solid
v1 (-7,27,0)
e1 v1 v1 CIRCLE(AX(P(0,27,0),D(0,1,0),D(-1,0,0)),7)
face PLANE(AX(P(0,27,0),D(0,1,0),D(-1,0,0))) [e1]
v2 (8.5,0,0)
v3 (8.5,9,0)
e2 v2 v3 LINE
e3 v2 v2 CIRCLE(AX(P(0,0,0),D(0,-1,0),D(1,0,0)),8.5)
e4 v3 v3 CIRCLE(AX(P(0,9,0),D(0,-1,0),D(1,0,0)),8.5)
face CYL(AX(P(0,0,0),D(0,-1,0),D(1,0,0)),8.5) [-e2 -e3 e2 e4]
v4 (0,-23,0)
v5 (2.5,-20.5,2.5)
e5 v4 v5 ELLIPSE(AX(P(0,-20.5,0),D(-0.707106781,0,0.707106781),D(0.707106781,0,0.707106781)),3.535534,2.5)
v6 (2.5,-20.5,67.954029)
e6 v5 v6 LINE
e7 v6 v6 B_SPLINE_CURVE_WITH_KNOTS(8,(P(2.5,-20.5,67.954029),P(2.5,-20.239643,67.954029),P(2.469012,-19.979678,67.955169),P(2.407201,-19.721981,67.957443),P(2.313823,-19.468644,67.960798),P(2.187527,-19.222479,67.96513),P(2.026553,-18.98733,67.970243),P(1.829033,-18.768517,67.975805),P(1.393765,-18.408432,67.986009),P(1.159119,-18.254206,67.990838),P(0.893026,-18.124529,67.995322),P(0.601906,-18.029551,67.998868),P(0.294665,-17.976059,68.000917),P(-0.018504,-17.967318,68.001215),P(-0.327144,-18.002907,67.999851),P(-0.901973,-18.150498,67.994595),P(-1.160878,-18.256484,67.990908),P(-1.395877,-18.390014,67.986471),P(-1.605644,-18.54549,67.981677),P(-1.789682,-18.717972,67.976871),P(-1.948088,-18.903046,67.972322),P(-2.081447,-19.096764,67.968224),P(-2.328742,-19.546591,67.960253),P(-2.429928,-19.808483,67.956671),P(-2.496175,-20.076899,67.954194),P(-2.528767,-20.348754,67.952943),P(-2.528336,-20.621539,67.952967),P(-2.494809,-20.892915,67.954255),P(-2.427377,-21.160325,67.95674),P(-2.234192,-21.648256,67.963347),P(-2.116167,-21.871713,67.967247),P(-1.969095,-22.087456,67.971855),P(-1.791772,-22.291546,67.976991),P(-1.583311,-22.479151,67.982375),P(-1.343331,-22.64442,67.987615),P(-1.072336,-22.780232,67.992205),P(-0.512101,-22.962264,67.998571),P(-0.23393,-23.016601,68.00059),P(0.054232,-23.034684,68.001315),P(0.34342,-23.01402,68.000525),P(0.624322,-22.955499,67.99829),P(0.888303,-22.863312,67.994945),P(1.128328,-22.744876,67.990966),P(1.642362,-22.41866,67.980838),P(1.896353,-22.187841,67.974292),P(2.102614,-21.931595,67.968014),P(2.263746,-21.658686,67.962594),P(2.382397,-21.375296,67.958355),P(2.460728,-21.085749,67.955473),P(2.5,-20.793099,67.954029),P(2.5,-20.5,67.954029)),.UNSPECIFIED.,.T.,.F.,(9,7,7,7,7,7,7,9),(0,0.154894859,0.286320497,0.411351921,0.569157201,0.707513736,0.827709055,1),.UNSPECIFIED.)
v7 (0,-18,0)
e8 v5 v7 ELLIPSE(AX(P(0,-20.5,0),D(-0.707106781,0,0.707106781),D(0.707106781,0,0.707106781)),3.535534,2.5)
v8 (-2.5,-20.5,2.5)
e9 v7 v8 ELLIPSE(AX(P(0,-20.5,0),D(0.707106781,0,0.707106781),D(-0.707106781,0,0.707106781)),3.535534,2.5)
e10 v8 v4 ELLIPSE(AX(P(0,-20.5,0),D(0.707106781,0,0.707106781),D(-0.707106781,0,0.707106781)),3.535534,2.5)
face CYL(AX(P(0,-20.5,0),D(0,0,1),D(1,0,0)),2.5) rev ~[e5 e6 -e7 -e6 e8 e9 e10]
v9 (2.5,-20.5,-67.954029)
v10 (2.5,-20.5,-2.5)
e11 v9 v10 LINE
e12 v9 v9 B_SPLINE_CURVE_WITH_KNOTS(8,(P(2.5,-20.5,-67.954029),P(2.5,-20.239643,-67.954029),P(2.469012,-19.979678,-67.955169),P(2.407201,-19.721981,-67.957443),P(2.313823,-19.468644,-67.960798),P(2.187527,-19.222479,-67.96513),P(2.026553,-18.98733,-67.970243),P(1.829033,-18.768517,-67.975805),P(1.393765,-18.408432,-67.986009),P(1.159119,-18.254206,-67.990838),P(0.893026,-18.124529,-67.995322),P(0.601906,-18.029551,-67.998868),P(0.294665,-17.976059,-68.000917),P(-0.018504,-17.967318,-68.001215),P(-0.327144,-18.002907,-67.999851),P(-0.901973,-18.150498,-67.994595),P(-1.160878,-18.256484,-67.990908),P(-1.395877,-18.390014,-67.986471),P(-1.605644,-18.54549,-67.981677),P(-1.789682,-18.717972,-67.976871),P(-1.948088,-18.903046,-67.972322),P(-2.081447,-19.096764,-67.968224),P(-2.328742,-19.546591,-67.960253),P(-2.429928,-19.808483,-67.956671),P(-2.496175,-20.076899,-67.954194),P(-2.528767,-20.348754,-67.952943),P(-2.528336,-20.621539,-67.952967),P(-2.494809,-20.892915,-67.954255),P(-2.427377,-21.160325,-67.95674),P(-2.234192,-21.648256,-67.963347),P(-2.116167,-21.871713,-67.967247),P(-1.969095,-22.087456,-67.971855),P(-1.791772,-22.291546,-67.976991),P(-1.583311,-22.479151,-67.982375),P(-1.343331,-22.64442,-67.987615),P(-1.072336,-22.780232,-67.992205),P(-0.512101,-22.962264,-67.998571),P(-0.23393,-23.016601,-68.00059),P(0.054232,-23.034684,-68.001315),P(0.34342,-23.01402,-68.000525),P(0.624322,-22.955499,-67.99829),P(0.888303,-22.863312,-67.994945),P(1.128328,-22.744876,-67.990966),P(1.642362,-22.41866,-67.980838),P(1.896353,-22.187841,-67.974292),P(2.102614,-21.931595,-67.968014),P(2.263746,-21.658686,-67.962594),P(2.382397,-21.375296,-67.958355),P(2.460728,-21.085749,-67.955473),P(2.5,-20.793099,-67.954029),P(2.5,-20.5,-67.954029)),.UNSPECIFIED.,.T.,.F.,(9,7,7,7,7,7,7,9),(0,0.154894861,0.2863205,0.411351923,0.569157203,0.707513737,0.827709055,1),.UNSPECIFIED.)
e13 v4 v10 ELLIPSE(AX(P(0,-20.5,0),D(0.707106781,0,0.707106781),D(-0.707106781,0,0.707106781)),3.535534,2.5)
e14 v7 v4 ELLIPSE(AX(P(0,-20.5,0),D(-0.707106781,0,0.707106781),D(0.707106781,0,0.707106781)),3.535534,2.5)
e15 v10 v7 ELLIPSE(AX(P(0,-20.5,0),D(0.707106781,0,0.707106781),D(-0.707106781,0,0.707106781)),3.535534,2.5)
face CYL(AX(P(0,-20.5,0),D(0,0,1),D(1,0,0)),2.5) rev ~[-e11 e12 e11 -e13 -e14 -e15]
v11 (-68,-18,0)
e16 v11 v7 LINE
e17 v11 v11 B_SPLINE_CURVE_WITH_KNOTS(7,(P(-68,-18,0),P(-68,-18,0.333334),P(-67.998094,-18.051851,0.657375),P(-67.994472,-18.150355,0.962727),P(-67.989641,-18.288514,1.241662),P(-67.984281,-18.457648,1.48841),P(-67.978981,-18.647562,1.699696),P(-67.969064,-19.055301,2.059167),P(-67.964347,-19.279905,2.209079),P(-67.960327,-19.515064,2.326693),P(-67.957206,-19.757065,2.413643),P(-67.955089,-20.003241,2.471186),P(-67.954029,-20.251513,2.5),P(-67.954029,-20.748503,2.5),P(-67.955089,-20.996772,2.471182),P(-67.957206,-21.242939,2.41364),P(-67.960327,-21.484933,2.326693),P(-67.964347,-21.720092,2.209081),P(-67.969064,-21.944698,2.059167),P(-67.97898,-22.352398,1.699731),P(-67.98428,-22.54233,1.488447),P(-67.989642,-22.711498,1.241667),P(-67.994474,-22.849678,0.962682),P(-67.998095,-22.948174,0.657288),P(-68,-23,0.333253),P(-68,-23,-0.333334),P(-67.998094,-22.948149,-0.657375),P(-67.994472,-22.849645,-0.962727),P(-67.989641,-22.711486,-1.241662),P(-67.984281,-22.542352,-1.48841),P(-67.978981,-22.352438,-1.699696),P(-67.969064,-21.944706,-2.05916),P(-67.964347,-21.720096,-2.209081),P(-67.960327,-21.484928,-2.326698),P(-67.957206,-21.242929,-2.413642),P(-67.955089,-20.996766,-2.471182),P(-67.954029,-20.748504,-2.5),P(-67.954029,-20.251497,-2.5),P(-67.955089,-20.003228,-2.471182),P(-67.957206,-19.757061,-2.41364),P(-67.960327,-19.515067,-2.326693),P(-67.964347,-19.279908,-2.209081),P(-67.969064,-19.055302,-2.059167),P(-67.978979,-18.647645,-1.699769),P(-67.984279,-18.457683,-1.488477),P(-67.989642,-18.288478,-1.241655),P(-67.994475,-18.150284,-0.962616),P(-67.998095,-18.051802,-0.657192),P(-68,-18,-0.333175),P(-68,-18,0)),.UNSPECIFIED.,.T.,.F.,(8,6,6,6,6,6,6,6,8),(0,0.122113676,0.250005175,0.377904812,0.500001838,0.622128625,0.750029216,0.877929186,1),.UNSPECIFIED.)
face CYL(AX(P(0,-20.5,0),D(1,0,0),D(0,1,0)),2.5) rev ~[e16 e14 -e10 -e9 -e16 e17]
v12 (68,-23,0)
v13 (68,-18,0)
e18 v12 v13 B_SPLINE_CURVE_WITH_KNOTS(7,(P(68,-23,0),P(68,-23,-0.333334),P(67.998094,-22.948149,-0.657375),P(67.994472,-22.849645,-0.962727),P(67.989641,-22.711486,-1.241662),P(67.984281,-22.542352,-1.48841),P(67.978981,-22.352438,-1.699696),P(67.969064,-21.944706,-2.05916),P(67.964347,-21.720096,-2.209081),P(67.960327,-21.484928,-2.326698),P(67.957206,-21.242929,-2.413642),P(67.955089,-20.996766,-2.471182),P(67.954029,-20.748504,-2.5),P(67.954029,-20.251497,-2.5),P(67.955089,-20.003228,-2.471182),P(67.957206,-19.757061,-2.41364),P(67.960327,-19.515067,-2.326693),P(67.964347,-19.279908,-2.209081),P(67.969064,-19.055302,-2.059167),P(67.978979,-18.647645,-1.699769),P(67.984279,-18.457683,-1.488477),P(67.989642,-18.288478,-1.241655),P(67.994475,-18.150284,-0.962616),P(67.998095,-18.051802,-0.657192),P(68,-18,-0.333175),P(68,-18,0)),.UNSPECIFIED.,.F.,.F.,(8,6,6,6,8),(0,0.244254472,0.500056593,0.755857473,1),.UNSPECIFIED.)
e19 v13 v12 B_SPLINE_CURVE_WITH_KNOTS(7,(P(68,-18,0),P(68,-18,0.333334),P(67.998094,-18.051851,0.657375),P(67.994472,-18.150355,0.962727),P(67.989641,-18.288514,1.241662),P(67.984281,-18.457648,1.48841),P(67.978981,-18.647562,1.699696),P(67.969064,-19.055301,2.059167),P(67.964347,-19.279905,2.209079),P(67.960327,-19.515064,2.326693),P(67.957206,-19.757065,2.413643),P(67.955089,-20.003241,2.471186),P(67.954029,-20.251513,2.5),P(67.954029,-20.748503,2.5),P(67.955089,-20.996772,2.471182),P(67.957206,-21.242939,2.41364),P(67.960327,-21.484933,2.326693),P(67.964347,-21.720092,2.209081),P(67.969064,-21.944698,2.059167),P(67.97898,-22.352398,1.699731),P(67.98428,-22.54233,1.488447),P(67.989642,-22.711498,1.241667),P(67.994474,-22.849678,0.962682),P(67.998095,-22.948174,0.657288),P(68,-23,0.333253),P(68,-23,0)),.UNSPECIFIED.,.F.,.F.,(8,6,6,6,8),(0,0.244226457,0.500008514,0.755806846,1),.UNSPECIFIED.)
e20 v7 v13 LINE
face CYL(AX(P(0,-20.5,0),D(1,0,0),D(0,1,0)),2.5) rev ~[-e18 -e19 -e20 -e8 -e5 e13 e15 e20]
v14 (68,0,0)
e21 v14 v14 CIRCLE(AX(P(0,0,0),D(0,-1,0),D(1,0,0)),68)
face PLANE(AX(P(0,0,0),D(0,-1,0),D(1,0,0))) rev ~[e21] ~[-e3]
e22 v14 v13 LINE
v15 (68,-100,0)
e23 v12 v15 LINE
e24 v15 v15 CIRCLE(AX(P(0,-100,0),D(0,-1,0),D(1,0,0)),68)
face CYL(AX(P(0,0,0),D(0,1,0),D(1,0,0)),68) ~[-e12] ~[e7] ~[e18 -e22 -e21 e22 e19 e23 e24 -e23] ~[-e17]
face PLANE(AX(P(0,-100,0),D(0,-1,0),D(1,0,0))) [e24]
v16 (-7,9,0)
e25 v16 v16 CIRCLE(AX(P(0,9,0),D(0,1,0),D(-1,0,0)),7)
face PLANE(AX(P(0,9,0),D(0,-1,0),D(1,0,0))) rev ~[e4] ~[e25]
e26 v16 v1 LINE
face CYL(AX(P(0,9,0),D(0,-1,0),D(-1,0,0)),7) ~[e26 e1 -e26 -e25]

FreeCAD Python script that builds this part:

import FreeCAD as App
import Part
import Sketcher
Q = App.Units.Quantity

doc = App.newDocument("Part")
params = doc.addObject("Spreadsheet::Sheet", "Params")
for row, (alias, value) in enumerate([
    ("sketch1_diameter", "136 mm"),
    ("pad1_length", "100 mm"),
    ("sketch2_diameter", "17 mm"),
    ("pad2_length", "9 mm"),
    ("sketch3_diameter", "5 mm"),
    ("pocket1_length", "150 mm"),
    ("sketch4_diameter", "5 mm"),
    ("pocket2_length", "150 mm"),
    ("sketch5_diameter", "14 mm"),
    ("pad3_length", "18 mm"),
], start=1):
    params.set(f"A{row}", alias)
    params.set(f"B{row}", "=" + value)
    params.setAlias(f"B{row}", alias)

body = doc.addObject("PartDesign::Body", "Body")

sketch1 = body.newObject("Sketcher::SketchObject", "Sketch")
sketch1.AttachmentSupport = (doc.getObject("XZ_Plane"), [""])
sketch1.MapMode = "FlatFace"
sketch1.addGeometry(Part.Circle(App.Vector(0, 0, 0), App.Vector(0, 0, 1), 68), False)
sketch1.addConstraint([
    Sketcher.Constraint("Coincident", 0, 3, -1, 1),
    Sketcher.Constraint("Diameter", 0, Q("136 mm")),
])
sketch1.setExpression("Constraints[1]", "Params.sketch1_diameter")
pad1 = body.newObject("PartDesign::Pad", "Pad")
pad1.Profile = sketch1
pad1.setExpression("Length", "Params.pad1_length")

sketch2 = body.newObject("Sketcher::SketchObject", "Sketch001")
sketch2.AttachmentSupport = (doc.getObject("XZ_Plane"), [""])
sketch2.MapMode = "FlatFace"
sketch2.addGeometry(Part.Circle(App.Vector(0, 0, 0), App.Vector(0, 0, 1), 8.5), False)
sketch2.addConstraint([
    Sketcher.Constraint("Coincident", 0, 3, -1, 1),
    Sketcher.Constraint("Diameter", 0, Q("17 mm")),
])
sketch2.setExpression("Constraints[1]", "Params.sketch2_diameter")
pad2 = body.newObject("PartDesign::Pad", "Pad001")
pad2.Profile = sketch2
pad2.setExpression("Length", "Params.pad2_length")
pad2.Reversed = True

sketch3 = body.newObject("Sketcher::SketchObject", "Sketch002")
sketch3.AttachmentSupport = (doc.getObject("XY_Plane"), [""])
sketch3.MapMode = "FlatFace"
sketch3.addGeometry(Part.Circle(App.Vector(0, -20.5, 0), App.Vector(0, 0, 1), 2.5), False)
sketch3.addConstraint([
    Sketcher.Constraint("PointOnObject", 0, 3, -2),
    Sketcher.Constraint("Diameter", 0, Q("5 mm")),
    Sketcher.Constraint("DistanceY", 0, 3, -1, 1, Q("20.5 mm")),
])
sketch3.setExpression("Constraints[1]", "Params.sketch3_diameter")
pocket1 = body.newObject("PartDesign::Pocket", "Pocket")
pocket1.Profile = sketch3
pocket1.setExpression("Length", "Params.pocket1_length")
pocket1.Midplane = True

sketch4 = body.newObject("Sketcher::SketchObject", "Sketch003")
sketch4.AttachmentSupport = (doc.getObject("YZ_Plane"), [""])
sketch4.MapMode = "FlatFace"
sketch4.addGeometry(Part.Circle(App.Vector(-20.5, 0, 0), App.Vector(0, 0, 1), 2.5), False)
sketch4.addConstraint([
    Sketcher.Constraint("PointOnObject", 0, 3, -1),
    Sketcher.Constraint("Diameter", 0, Q("5 mm")),
    Sketcher.Constraint("DistanceX", 0, 3, -1, 1, Q("20.5 mm")),
])
sketch4.setExpression("Constraints[1]", "Params.sketch4_diameter")
pocket2 = body.newObject("PartDesign::Pocket", "Pocket001")
pocket2.Profile = sketch4
pocket2.setExpression("Length", "Params.pocket2_length")
pocket2.Midplane = True

sketch5 = body.newObject("Sketcher::SketchObject", "Sketch004")
sketch5.AttachmentSupport = (doc.getObject("XZ_Plane"), [""])
sketch5.MapMode = "FlatFace"
sketch5.AttachmentOffset = App.Placement(App.Vector(0, 0, -9), App.Rotation())
sketch5.addGeometry(Part.Circle(App.Vector(0, 0, 0), App.Vector(0, 0, 1), 7), False)
sketch5.addConstraint([
    Sketcher.Constraint("Coincident", 0, 3, -1, 1),
    Sketcher.Constraint("Diameter", 0, Q("14 mm")),
])
sketch5.setExpression("Constraints[1]", "Params.sketch5_diameter")
pad3 = body.newObject("PartDesign::Pad", "Pad002")
pad3.Profile = sketch5
pad3.setExpression("Length", "Params.pad3_length")
pad3.Reversed = True

doc.recompute()
